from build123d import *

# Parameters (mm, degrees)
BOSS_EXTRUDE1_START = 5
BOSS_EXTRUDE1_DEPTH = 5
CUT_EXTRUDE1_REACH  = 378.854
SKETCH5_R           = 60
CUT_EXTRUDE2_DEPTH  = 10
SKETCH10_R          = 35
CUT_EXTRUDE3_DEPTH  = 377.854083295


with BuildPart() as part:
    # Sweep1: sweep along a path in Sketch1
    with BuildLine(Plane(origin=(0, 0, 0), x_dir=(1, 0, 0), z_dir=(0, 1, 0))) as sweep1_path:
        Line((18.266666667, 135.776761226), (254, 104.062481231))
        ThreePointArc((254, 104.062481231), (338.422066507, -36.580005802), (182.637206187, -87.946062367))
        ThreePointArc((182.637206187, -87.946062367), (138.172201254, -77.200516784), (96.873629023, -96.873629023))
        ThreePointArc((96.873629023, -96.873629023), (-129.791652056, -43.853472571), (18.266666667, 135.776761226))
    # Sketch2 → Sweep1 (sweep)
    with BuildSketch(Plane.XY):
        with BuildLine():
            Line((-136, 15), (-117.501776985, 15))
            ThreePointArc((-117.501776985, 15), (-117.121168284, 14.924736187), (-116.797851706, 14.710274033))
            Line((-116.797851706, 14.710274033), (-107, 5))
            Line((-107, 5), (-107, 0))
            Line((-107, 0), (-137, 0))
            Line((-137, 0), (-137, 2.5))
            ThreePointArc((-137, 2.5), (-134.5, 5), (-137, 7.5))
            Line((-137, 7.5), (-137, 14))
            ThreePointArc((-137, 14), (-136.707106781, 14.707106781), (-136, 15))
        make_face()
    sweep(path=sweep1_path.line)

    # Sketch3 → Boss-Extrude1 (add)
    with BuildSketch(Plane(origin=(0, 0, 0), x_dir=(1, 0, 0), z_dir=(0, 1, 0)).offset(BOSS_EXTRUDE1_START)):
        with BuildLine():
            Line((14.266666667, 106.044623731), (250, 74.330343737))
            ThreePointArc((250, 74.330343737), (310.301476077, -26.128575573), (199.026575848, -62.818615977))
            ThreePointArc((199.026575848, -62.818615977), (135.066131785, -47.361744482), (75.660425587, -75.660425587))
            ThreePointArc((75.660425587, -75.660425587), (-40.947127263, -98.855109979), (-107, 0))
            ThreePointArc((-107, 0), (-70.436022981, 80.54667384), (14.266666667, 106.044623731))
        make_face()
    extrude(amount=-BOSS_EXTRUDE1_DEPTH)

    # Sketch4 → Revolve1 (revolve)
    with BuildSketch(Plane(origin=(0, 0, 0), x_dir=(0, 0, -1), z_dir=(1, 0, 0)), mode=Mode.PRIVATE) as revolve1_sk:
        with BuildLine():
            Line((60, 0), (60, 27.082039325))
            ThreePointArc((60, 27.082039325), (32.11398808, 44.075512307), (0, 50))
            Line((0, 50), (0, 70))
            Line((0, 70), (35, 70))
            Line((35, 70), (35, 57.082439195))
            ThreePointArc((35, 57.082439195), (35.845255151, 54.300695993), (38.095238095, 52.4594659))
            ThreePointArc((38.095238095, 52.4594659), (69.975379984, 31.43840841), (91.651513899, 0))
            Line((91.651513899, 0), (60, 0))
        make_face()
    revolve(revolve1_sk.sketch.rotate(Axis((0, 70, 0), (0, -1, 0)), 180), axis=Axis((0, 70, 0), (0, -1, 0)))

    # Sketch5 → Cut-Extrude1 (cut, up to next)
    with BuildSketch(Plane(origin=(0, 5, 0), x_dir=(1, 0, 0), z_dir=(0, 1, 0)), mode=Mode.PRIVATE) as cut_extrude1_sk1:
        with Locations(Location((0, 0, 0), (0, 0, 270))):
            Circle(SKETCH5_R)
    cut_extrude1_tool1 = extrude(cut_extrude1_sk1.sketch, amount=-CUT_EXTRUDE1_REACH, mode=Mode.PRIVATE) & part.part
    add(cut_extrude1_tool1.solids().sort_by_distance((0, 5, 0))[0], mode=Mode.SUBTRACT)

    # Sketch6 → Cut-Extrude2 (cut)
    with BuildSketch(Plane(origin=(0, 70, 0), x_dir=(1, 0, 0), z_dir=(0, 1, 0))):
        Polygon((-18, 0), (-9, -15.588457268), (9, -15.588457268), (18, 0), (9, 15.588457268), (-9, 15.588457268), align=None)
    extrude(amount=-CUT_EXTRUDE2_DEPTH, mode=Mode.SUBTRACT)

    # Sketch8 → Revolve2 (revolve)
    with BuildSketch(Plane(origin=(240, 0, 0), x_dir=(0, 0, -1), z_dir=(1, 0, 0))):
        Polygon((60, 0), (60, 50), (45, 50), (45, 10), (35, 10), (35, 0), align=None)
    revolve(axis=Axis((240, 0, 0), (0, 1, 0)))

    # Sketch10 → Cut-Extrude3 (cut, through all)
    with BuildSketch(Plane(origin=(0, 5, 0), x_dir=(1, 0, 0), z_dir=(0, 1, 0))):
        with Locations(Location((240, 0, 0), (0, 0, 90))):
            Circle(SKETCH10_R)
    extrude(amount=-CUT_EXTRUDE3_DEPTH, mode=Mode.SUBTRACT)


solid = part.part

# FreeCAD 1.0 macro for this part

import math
import FreeCAD as App
import Part
import Sketcher
from FreeCAD import Vector
Q = App.Units.Quantity


def add_polygon(sketch, points):
    """Adds a closed chain of lines whose ends are joined by coincident constraints."""
    first, n = sketch.GeometryCount, len(points)
    for a, b in zip(points, points[1:] + points[:1]):
        sketch.addGeometry(Part.LineSegment(App.Vector(*a, 0), App.Vector(*b, 0)), False)
    for i in range(n):
        sketch.addConstraint(Sketcher.Constraint("Coincident", first + i, 2, first + (i + 1) % n, 1))

doc = App.newDocument("Part")
body = doc.addObject("PartDesign::Body", "Body")

sketch1 = body.newObject("Sketcher::SketchObject", "Sketch")
sketch1.AttachmentSupport = (doc.getObject("XY_Plane"), [""])
sketch1.MapMode = "FlatFace"
sketch1.addGeometry([
    Part.LineSegment(Vector(-117.5, 15, 0), Vector(-136, 15, 0)),
    Part.ArcOfCircle(Part.Circle(Vector(-136, 14, 0), Vector(0, 0, 1), 1), math.radians(90), math.radians(180)),
    Part.LineSegment(Vector(-137, 14, 0), Vector(-137, 7.5, 0)),
    Part.ArcOfCircle(Part.Circle(Vector(-137, 5, 0), Vector(0, 0, 1), 2.5), math.radians(-90), math.radians(90)),
    Part.LineSegment(Vector(-137, 2.5, 0), Vector(-137, 0, 0)),
    Part.LineSegment(Vector(-137, 0, 0), Vector(-107, 0, 0)),
    Part.LineSegment(Vector(-107, 0, 0), Vector(-107, 5, 0)),
    Part.LineSegment(Vector(-107, 5, 0), Vector(-116.8, 14.7, 0)),
    Part.ArcOfCircle(Part.Circle(Vector(-117.5, 14, 0), Vector(0, 0, 1), 1), math.radians(45), math.radians(90)),
], False)
sketch1.addConstraint([
    Sketcher.Constraint("Tangent", 0, 2, 1, 1),
    Sketcher.Constraint("Tangent", 1, 2, 2, 1),
    Sketcher.Constraint("Coincident", 2, 2, 3, 2),
    Sketcher.Constraint("Coincident", 3, 1, 4, 1),
    Sketcher.Constraint("Coincident", 4, 2, 5, 1),
    Sketcher.Constraint("Coincident", 5, 2, 6, 1),
    Sketcher.Constraint("Coincident", 6, 2, 7, 1),
    Sketcher.Constraint("Tangent", 7, 2, 8, 1),
    Sketcher.Constraint("Tangent", 8, 2, 0, 1),
    Sketcher.Constraint("Horizontal", 0),
    Sketcher.Constraint("Vertical", 2),
    Sketcher.Constraint("Vertical", 4),
    Sketcher.Constraint("Horizontal", 5),
    Sketcher.Constraint("Vertical", 6),
    Sketcher.Constraint("Equal", 1, 8),
    Sketcher.Constraint("PointOnObject", 4, 2, -1),
    Sketcher.Constraint("Horizontal", 3, 3, 6, 2),
    Sketcher.Constraint("Vertical", 3, 3, 1, 2),
    Sketcher.Constraint("Vertical", 2, 2, 3, 1),
    Sketcher.Constraint("Radius", 1, Q("1 mm")),
    Sketcher.Constraint("Radius", 3, Q("2.5 mm")),
    Sketcher.Constraint("DistanceX", 5, 1, 5, 2, Q("30 mm")),
    Sketcher.Constraint("DistanceY", 6, 1, 6, 2, Q("5 mm")),
    Sketcher.Constraint("DistanceY", 2, 2, 2, 1, Q("6.5 mm")),
    Sketcher.Constraint("DistanceX", 1, 3, -1, 1, Q("136 mm")),
    Sketcher.Constraint("DistanceX", 0, 2, 0, 1, Q("18.498223 mm")),
])

sketch2 = body.newObject("Sketcher::SketchObject", "Sketch001")
sketch2.AttachmentSupport = (doc.getObject("XZ_Plane"), [""])
sketch2.MapMode = "FlatFace"
sketch2.addGeometry([
    Part.LineSegment(Vector(18, -136, 0), Vector(254, -104, 0)),
    Part.ArcOfCircle(Part.Circle(Vector(240, 0, 0), Vector(0, 0, 1), 105), math.radians(-82), math.radians(123)),
    Part.ArcOfCircle(Part.Circle(Vector(145, 145, 0), Vector(0, 0, 1), 68), math.radians(-135), math.radians(-57)),
    Part.ArcOfCircle(Part.Circle(Vector(0, 0, 0), Vector(0, 0, 1), 137), math.radians(45), math.radians(278)),
], False)
sketch2.addConstraint([
    Sketcher.Constraint("Tangent", 0, 2, 1, 1),
    Sketcher.Constraint("Tangent", 1, 2, 2, 2),
    Sketcher.Constraint("Tangent", 2, 1, 3, 1),
    Sketcher.Constraint("Tangent", 3, 2, 0, 1),
    Sketcher.Constraint("Coincident", 3, 3, -1, 1),
    Sketcher.Constraint("PointOnObject", 1, 3, -1),
    Sketcher.Constraint("Radius", 1, Q("105 mm")),
    Sketcher.Constraint("Radius", 3, Q("137 mm")),
    Sketcher.Constraint("DistanceX", -1, 1, 1, 3, Q("240 mm")),
    Sketcher.Constraint("Radius", 2, Q("68.423704 mm")),
])
doc.recompute()

additivepipe = body.newObject("PartDesign::AdditivePipe", "AdditivePipe")
additivepipe.Profile = sketch1
additivepipe.Spine = (sketch2, ["Edge1", "Edge2", "Edge3", "Edge4"])

sketch3 = body.newObject("Sketcher::SketchObject", "Sketch002")
sketch3.AttachmentSupport = (doc.getObject("XZ_Plane"), [""])
sketch3.MapMode = "FlatFace"
sketch3.AttachmentOffset = App.Placement(Vector(0, 0, -5), App.Rotation())
sketch3.addGeometry([
    Part.LineSegment(Vector(250, -74, 0), Vector(14, -106, 0)),
    Part.ArcOfCircle(Part.Circle(Vector(0, 0, 0), Vector(0, 0, 1), 107), math.radians(180), math.radians(278)),
    Part.ArcOfCircle(Part.Circle(Vector(0, 0, 0), Vector(0, 0, 1), 107), math.radians(45), math.radians(180)),
    Part.ArcOfCircle(Part.Circle(Vector(145, 145, 0), Vector(0, 0, 1), 98), math.radians(-135), math.radians(-57)),
    Part.ArcOfCircle(Part.Circle(Vector(240, 0, 0), Vector(0, 0, 1), 75), math.radians(-82), math.radians(123)),
], False)
sketch3.addConstraint([
    Sketcher.Constraint("Tangent", 0, 2, 1, 2),
    Sketcher.Constraint("Tangent", 1, 1, 2, 2),
    Sketcher.Constraint("Tangent", 2, 1, 3, 1),
    Sketcher.Constraint("Tangent", 3, 2, 4, 2),
    Sketcher.Constraint("Tangent", 4, 1, 0, 1),
    Sketcher.Constraint("Coincident", 1, 3, -1, 1),
    Sketcher.Constraint("Equal", 1, 2),
    Sketcher.Constraint("PointOnObject", 4, 3, -1),
    Sketcher.Constraint("PointOnObject", 1, 1, -1),
    Sketcher.Constraint("Radius", 1, Q("107 mm")),
    Sketcher.Constraint("Radius", 4, Q("75 mm")),
    Sketcher.Constraint("DistanceX", -1, 1, 4, 3, Q("240 mm")),
    Sketcher.Constraint("Radius", 3, Q("98.423704 mm")),
])
pad1 = body.newObject("PartDesign::Pad", "Pad")
pad1.Profile = sketch3
pad1.Length = 5

sketch4 = body.newObject("Sketcher::SketchObject", "Sketch003")
sketch4.AttachmentSupport = (doc.getObject("YZ_Plane"), [""])
sketch4.MapMode = "FlatFace"
sketch4.addGeometry([
    Part.LineSegment(Vector(27.1, -60, 0), Vector(0, -60, 0)),
    Part.LineSegment(Vector(0, -60, 0), Vector(0, -91.7, 0)),
    Part.ArcOfCircle(Part.Circle(Vector(-40, 0, 0), Vector(0, 0, 1), 100), math.radians(-66), math.radians(-22)),
    Part.ArcOfCircle(Part.Circle(Vector(57.1, -40, 0), Vector(0, 0, 1), 5), math.radians(90), math.radians(158)),
    Part.LineSegment(Vector(57.1, -35, 0), Vector(70, -35, 0)),
    Part.LineSegment(Vector(70, -35, 0), Vector(70, 0, 0)),
    Part.LineSegment(Vector(70, 0, 0), Vector(50, 0, 0)),
    Part.ArcOfCircle(Part.Circle(Vector(-40, 0, 0), Vector(0, 0, 1), 90), math.radians(-42), math.radians(0)),
], False)
sketch4.addConstraint([
    Sketcher.Constraint("Coincident", 0, 2, 1, 1),
    Sketcher.Constraint("Coincident", 1, 2, 2, 1),
    Sketcher.Constraint("Tangent", 2, 2, 3, 2),
    Sketcher.Constraint("Tangent", 3, 1, 4, 1),
    Sketcher.Constraint("Coincident", 4, 2, 5, 1),
    Sketcher.Constraint("Coincident", 5, 2, 6, 1),
    Sketcher.Constraint("Coincident", 6, 2, 7, 2),
    Sketcher.Constraint("Coincident", 7, 1, 0, 1),
    Sketcher.Constraint("Horizontal", 0),
    Sketcher.Constraint("Vertical", 1),
    Sketcher.Constraint("Horizontal", 4),
    Sketcher.Constraint("Vertical", 5),
    Sketcher.Constraint("Horizontal", 6),
    Sketcher.Constraint("Coincident", 7, 3, 2, 3),
    Sketcher.Constraint("PointOnObject", 2, 3, -1),
    Sketcher.Constraint("PointOnObject", 0, 2, -2),
    Sketcher.Constraint("PointOnObject", 5, 2, -1),
    Sketcher.Constraint("Radius", 2, Q("100 mm")),
    Sketcher.Constraint("Radius", 3, Q("5 mm")),
    Sketcher.Constraint("Radius", 7, Q("90 mm")),
    Sketcher.Constraint("DistanceX", 6, 2, 6, 1, Q("20 mm")),
    Sketcher.Constraint("DistanceY", 5, 1, 5, 2, Q("35 mm")),
    Sketcher.Constraint("DistanceX", 2, 3, -1, 1, Q("40 mm")),
    Sketcher.Constraint("DistanceY", 0, 2, -1, 1, Q("60 mm")),
])
revolution = body.newObject("PartDesign::Revolution", "Revolution")
revolution.Profile = sketch4
revolution.ReferenceAxis = (sketch4, ["H_Axis"])
revolution.Angle = 360

sketch5 = body.newObject("Sketcher::SketchObject", "Sketch004")
sketch5.AttachmentSupport = (doc.getObject("XZ_Plane"), [""])
sketch5.MapMode = "FlatFace"
sketch5.AttachmentOffset = App.Placement(Vector(0, 0, -5), App.Rotation())
sketch5.addGeometry(Part.Circle(Vector(0, 0, 0), Vector(0, 0, 1), 60), False)
sketch5.addConstraint([
    Sketcher.Constraint("Coincident", 0, 3, -1, 1),
    Sketcher.Constraint("Diameter", 0, Q("120 mm")),
])
pocket1 = body.newObject("PartDesign::Pocket", "Pocket")
pocket1.Profile = sketch5
pocket1.Type = "UpToFirst"
pocket1.Reversed = True

sketch6 = body.newObject("Sketcher::SketchObject", "Sketch005")
sketch6.AttachmentSupport = (doc.getObject("XZ_Plane"), [""])
sketch6.MapMode = "FlatFace"
sketch6.AttachmentOffset = App.Placement(Vector(0, 0, -70), App.Rotation())
add_polygon(sketch6, [(-18, 0), (-9, 16), (9, 16), (18, 0), (9, -16), (-9, -16)])
sketch6.addConstraint([
    Sketcher.Constraint("Horizontal", 1),
    Sketcher.Constraint("Horizontal", 4),
    Sketcher.Constraint("Symmetric", 0, 2, 3, 2, -1, 1),
    Sketcher.Constraint("Symmetric", 2, 2, 5, 2, -1, 1),
    Sketcher.Constraint("PointOnObject", 2, 2, -1),
    Sketcher.Constraint("Parallel", 2, 5),
    Sketcher.Constraint("Vertical", 1, 2, 3, 2),
    Sketcher.Constraint("DistanceX", 1, 1, 1, 2, Q("18 mm")),
    Sketcher.Constraint("Angle", 0, Q("60 deg")),
    Sketcher.Constraint("Distance", 0, Q("18 mm")),
])
pocket2 = body.newObject("PartDesign::Pocket", "Pocket001")
pocket2.Profile = sketch6
pocket2.Length = 10
pocket2.Reversed = True

sketch7 = body.newObject("Sketcher::SketchObject", "Sketch006")
sketch7.AttachmentSupport = (doc.getObject("YZ_Plane"), [""])
sketch7.MapMode = "FlatFace"
sketch7.AttachmentOffset = App.Placement(Vector(0, 0, 240), App.Rotation())
add_polygon(sketch7, [(0, -60), (50, -60), (50, -45), (10, -45), (10, -35), (0, -35)])
sketch7.addConstraint([
    Sketcher.Constraint("Horizontal", 0),
    Sketcher.Constraint("Vertical", 1),
    Sketcher.Constraint("Horizontal", 2),
    Sketcher.Constraint("Vertical", 3),
    Sketcher.Constraint("Horizontal", 4),
    Sketcher.Constraint("Vertical", 5),
    Sketcher.Constraint("PointOnObject", 4, 2, -2),
    Sketcher.Constraint("Equal", 4, 3),
    Sketcher.Constraint("DistanceX", 0, 1, 0, 2, Q("50 mm")),
    Sketcher.Constraint("DistanceX", 2, 2, 2, 1, Q("40 mm")),
    Sketcher.Constraint("DistanceY", 1, 1, 1, 2, Q("15 mm")),
    Sketcher.Constraint("DistanceY", 0, 2, -1, 1, Q("60 mm")),
])
revolution2 = body.newObject("PartDesign::Revolution", "Revolution001")
revolution2.Profile = sketch7
revolution2.ReferenceAxis = (sketch7, ["H_Axis"])
revolution2.Angle = 360

sketch8 = body.newObject("Sketcher::SketchObject", "Sketch007")
sketch8.AttachmentSupport = (doc.getObject("XZ_Plane"), [""])
sketch8.MapMode = "FlatFace"
sketch8.AttachmentOffset = App.Placement(Vector(0, 0, -5), App.Rotation())
sketch8.addGeometry(Part.Circle(Vector(240, 0, 0), Vector(0, 0, 1), 35), False)
sketch8.addConstraint([
    Sketcher.Constraint("PointOnObject", 0, 3, -1),
    Sketcher.Constraint("Diameter", 0, Q("70 mm")),
    Sketcher.Constraint("DistanceX", -1, 1, 0, 3, Q("240 mm")),
])
pocket3 = body.newObject("PartDesign::Pocket", "Pocket002")
pocket3.Profile = sketch8
pocket3.Type = "ThroughAll"
pocket3.Reversed = True

doc.recompute()
